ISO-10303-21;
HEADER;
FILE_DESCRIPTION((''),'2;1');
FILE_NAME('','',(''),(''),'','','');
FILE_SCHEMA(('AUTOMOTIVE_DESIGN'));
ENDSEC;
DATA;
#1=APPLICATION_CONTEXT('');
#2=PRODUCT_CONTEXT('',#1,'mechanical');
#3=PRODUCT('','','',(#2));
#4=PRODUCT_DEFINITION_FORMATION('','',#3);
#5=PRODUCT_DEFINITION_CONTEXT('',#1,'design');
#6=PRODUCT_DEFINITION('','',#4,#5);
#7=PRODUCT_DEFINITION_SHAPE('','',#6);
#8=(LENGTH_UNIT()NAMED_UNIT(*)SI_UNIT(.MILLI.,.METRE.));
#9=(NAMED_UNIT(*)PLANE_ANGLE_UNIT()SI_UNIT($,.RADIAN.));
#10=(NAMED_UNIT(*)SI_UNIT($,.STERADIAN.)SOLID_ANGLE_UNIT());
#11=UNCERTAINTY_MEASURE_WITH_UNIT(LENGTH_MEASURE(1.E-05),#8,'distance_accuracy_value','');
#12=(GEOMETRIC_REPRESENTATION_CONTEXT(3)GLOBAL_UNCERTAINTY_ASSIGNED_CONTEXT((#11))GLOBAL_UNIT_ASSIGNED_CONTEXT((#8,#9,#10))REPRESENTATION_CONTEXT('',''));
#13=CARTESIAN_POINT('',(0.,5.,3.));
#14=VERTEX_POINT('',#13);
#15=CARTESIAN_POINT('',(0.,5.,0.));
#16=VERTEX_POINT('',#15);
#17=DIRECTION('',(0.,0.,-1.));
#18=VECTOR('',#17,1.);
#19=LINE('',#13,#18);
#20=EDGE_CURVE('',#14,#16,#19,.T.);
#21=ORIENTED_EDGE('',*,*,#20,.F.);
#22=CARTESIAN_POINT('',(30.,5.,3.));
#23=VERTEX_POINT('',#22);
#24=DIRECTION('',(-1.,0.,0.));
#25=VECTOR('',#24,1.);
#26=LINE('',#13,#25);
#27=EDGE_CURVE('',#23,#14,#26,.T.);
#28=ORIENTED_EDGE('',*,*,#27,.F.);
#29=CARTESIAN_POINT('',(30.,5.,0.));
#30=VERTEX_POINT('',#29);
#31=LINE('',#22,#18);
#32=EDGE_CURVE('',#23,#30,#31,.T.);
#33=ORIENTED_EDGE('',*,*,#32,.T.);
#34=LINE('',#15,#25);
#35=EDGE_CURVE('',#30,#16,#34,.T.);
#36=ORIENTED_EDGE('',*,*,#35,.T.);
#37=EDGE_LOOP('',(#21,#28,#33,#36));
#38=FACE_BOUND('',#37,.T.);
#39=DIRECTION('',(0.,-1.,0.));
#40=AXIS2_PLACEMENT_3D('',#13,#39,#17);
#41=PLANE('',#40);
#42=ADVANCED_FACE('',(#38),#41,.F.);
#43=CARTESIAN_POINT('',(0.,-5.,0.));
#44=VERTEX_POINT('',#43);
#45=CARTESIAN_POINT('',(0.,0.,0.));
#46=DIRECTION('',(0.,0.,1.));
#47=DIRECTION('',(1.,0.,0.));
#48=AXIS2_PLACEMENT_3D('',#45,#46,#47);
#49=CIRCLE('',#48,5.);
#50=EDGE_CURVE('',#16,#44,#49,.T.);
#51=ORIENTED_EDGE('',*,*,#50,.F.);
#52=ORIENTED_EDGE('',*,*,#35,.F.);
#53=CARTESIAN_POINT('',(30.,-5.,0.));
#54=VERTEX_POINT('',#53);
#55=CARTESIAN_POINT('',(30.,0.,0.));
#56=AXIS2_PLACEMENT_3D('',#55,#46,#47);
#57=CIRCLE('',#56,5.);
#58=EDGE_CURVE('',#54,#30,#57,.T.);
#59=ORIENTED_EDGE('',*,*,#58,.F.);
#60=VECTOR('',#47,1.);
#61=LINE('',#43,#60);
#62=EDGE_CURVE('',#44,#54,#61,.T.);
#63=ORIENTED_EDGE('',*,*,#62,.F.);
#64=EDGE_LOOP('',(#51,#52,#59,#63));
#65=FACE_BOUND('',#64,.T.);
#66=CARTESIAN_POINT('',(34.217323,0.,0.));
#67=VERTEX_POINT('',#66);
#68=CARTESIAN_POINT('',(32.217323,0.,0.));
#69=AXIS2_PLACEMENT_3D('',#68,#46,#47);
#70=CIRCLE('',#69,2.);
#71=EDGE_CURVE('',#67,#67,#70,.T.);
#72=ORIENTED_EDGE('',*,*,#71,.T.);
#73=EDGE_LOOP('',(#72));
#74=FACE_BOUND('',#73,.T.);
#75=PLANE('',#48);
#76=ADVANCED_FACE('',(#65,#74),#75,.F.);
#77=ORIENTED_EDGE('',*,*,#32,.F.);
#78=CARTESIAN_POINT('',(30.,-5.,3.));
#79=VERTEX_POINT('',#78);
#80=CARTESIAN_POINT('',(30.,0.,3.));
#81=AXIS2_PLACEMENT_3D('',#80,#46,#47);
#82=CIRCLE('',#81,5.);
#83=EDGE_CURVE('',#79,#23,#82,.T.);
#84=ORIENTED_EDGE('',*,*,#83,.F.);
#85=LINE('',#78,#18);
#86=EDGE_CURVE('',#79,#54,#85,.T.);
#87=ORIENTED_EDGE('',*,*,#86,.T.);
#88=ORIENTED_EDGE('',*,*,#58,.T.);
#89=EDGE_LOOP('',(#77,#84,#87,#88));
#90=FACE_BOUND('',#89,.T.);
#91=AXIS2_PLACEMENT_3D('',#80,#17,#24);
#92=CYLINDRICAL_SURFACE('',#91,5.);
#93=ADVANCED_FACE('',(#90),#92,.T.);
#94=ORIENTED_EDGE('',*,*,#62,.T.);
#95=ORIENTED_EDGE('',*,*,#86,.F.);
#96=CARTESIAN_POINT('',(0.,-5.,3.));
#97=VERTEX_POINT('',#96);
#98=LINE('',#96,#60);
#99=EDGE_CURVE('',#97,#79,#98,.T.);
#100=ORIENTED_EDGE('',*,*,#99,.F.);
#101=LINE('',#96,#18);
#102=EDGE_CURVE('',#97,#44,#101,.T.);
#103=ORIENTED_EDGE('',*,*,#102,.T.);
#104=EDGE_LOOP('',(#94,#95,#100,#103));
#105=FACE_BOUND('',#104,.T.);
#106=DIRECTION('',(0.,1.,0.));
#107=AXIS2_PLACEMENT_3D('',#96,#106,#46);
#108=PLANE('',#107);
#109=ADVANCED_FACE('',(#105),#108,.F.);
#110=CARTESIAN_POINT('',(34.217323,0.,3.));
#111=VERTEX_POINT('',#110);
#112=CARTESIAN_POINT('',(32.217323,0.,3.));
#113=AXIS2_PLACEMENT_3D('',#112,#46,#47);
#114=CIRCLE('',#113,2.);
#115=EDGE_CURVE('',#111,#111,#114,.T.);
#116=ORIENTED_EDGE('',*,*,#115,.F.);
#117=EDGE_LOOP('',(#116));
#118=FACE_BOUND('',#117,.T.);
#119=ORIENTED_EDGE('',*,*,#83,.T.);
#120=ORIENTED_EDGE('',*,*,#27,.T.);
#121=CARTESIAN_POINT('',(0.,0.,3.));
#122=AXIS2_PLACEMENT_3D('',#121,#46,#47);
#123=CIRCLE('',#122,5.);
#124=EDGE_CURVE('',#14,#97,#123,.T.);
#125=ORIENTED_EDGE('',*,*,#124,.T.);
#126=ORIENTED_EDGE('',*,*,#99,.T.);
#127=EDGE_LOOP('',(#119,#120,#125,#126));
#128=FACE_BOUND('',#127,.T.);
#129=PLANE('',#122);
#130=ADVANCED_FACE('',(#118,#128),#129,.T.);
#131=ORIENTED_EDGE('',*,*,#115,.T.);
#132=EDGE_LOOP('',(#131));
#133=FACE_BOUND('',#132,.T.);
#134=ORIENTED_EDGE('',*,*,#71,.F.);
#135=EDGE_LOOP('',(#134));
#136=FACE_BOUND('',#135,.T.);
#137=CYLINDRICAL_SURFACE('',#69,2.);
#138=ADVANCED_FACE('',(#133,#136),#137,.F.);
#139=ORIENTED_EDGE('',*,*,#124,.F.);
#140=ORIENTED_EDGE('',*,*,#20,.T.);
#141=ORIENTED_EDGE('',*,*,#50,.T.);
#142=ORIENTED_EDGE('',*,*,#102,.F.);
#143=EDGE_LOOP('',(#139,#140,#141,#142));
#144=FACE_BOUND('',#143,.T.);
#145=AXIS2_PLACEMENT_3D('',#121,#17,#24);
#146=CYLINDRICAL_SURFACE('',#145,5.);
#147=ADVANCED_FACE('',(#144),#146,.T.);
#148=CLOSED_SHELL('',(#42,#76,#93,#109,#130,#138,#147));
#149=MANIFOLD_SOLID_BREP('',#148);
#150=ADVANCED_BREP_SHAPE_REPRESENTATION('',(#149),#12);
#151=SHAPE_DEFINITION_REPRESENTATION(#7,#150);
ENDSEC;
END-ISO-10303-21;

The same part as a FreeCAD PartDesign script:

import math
import FreeCAD as App
import Part
import Sketcher

doc = App.newDocument("Part")
params = doc.addObject("Spreadsheet::Sheet", "Params")
for row, (alias, value) in enumerate([
    ("sketch1_radius", "5 mm"),
    ("sketch1_width", "30 mm"),
    ("pad1_length", "3 mm"),
    ("sketch2_diameter", "4 mm"),
    ("pocket1_length", "3 mm"),
], start=1):
    params.set(f"A{row}", alias)
    params.set(f"B{row}", "=" + value)
    params.setAlias(f"B{row}", alias)

body = doc.addObject("PartDesign::Body", "Body")

sketch1 = doc.addObject("Sketcher::SketchObject", "Sketch")
body.addObject(sketch1)
sketch1.AttachmentSupport = (doc.XY_Plane, [""])
sketch1.MapMode = "FlatFace"
sketch1.addGeometry(Part.LineSegment(App.Vector(30, 5, 0), App.Vector(0, 5, 0)), False)
sketch1.addGeometry(Part.ArcOfCircle(Part.Circle(App.Vector(0, 0, 0), App.Vector(0, 0, 1), 5), math.radians(90), math.radians(270)), False)
sketch1.addGeometry(Part.LineSegment(App.Vector(0, -5, 0), App.Vector(30, -5, 0)), False)
sketch1.addGeometry(Part.ArcOfCircle(Part.Circle(App.Vector(30, 0, 0), App.Vector(0, 0, 1), 5), math.radians(-90), math.radians(90)), False)
sketch1.addConstraint(Sketcher.Constraint("Tangent", 0, 2, 1, 1))
sketch1.addConstraint(Sketcher.Constraint("Tangent", 1, 2, 2, 1))
sketch1.addConstraint(Sketcher.Constraint("Tangent", 2, 2, 3, 1))
sketch1.addConstraint(Sketcher.Constraint("Tangent", 3, 2, 0, 1))
sketch1.addConstraint(Sketcher.Constraint("Horizontal", 0))
sketch1.addConstraint(Sketcher.Constraint("Horizontal", 2))
sketch1.addConstraint(Sketcher.Constraint("Coincident", 1, 3, -1, 1))
sketch1.addConstraint(Sketcher.Constraint("Radius", 1, 5.0))
sketch1.addConstraint(Sketcher.Constraint("DistanceX", 0, 2, 0, 1, 30.0))
sketch1.setExpression("Constraints[7]", "Params.sketch1_radius")
sketch1.setExpression("Constraints[8]", "Params.sketch1_width")
pad1 = doc.addObject("PartDesign::Pad", "Pad")
body.addObject(pad1)
pad1.Profile = sketch1
pad1.setExpression("Length", "Params.pad1_length")

sketch2 = doc.addObject("Sketcher::SketchObject", "Sketch001")
body.addObject(sketch2)
sketch2.AttachmentSupport = (doc.XY_Plane, [""])
sketch2.MapMode = "FlatFace"
sketch2.AttachmentOffset = App.Placement(App.Vector(0, 0, 3), App.Rotation())
sketch2.addGeometry(Part.Circle(App.Vector(32.2, 0, 0), App.Vector(0, 0, 1), 2), False)
sketch2.addConstraint(Sketcher.Constraint("PointOnObject", 0, 3, -1))
sketch2.addConstraint(Sketcher.Constraint("Diameter", 0, 4.0))
sketch2.addConstraint(Sketcher.Constraint("DistanceX", -1, 1, 0, 3, 32.217323))
sketch2.setExpression("Constraints[1]", "Params.sketch2_diameter")
pocket1 = doc.addObject("PartDesign::Pocket", "Pocket")
body.addObject(pocket1)
pocket1.Profile = sketch2
pocket1.setExpression("Length", "Params.pocket1_length")

doc.recompute()
